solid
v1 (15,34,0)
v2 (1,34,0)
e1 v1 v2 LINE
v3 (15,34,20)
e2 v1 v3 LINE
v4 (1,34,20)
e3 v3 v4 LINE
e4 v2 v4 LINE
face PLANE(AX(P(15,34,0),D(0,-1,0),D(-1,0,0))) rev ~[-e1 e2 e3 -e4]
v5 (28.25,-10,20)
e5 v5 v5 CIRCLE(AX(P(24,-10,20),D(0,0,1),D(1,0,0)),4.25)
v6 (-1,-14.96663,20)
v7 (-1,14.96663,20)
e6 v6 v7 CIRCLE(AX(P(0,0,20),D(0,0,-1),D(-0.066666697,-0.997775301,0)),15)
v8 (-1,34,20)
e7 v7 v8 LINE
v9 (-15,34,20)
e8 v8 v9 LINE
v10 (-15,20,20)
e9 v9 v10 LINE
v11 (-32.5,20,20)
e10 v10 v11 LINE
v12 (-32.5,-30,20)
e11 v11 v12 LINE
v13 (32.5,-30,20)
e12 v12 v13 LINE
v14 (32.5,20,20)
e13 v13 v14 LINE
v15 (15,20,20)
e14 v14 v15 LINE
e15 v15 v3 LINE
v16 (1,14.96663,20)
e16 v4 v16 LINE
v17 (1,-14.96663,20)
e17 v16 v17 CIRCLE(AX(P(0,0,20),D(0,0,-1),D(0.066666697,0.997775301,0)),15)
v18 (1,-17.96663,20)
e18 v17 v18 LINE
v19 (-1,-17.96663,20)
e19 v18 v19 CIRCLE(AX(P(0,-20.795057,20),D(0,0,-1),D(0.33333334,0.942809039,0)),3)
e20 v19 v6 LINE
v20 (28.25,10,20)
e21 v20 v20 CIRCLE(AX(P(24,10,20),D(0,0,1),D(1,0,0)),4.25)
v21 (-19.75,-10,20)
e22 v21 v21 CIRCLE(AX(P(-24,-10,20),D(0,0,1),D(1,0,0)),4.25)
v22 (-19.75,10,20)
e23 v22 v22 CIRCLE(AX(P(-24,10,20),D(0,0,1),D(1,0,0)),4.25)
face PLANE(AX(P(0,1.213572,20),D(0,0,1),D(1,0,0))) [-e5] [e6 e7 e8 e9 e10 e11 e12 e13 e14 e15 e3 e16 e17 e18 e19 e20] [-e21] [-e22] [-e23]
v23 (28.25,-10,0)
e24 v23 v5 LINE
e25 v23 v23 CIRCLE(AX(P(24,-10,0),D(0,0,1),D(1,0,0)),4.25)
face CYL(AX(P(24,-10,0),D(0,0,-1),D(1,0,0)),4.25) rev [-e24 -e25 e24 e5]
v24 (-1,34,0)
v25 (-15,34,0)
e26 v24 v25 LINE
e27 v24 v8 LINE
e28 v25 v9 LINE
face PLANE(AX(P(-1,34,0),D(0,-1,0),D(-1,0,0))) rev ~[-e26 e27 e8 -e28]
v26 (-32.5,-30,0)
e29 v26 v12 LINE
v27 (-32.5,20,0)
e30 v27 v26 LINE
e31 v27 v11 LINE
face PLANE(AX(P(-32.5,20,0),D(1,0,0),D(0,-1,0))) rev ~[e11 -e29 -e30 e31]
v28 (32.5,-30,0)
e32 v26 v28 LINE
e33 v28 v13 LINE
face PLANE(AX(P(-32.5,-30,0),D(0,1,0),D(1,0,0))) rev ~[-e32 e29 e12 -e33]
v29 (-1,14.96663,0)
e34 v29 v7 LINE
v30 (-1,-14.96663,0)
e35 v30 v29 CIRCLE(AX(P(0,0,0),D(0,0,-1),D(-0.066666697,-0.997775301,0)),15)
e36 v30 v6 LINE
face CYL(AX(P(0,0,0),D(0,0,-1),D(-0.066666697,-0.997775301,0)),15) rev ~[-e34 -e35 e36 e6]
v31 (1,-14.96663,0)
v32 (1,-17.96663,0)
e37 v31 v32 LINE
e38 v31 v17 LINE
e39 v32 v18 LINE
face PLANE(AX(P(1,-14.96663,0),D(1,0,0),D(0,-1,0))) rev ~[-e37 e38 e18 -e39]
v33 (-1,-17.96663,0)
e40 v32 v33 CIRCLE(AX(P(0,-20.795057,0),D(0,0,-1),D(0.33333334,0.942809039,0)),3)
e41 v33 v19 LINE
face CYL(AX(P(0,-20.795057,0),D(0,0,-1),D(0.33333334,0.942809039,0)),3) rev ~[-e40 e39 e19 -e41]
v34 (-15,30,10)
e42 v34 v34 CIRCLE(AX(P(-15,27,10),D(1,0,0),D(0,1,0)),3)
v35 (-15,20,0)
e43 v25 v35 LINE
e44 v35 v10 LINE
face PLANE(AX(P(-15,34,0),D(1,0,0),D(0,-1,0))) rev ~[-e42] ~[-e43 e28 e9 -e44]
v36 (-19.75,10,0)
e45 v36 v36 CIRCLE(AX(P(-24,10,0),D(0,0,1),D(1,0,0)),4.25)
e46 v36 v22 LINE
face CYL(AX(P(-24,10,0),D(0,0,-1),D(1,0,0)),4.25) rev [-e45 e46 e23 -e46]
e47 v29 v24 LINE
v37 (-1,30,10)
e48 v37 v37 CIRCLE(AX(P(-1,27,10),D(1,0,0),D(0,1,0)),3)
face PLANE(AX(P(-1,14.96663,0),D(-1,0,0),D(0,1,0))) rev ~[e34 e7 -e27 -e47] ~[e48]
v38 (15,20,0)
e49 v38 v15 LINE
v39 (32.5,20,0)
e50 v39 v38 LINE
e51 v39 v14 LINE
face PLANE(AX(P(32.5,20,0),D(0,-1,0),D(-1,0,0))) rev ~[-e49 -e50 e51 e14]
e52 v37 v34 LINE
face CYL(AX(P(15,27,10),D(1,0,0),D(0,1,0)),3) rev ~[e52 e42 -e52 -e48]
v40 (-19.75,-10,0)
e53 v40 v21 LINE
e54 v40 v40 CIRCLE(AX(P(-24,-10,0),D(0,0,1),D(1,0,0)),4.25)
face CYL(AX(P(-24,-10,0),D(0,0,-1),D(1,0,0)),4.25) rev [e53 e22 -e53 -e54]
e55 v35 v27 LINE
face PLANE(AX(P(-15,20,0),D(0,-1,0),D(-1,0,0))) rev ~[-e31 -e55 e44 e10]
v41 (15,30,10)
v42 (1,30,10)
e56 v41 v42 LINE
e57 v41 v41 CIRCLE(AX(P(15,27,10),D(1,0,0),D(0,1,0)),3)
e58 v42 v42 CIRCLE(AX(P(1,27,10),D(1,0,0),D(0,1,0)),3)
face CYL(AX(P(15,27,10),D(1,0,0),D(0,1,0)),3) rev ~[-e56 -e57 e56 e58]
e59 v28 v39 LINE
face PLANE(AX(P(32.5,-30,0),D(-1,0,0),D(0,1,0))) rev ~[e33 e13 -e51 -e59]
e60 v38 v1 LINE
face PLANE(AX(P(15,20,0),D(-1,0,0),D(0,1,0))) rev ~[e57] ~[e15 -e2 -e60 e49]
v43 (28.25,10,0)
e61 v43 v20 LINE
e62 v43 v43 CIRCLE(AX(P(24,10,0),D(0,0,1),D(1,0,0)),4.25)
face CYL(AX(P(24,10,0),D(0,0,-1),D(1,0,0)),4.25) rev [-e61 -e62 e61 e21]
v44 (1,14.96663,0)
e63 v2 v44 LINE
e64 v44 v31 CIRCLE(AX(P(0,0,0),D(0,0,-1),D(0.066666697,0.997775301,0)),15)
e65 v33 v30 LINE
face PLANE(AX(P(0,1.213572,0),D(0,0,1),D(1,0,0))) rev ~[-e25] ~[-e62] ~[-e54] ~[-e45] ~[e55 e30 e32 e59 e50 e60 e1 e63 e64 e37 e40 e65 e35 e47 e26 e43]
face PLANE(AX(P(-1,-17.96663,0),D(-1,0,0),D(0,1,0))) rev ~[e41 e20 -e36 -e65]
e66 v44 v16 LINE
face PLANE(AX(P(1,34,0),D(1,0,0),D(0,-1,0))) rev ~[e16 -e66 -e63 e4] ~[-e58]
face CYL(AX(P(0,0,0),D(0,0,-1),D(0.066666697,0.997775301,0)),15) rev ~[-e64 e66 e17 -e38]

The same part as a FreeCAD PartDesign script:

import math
import FreeCAD as App
import Part
import Sketcher

V = App.Vector

doc = App.newDocument("Part")
body = doc.addObject("PartDesign::Body", "Body")

# Sketch on XY plane
sketch1 = body.newObject("Sketcher::SketchObject", "Sketch")
sketch1.AttachmentSupport = (doc.getObject("XY_Plane"), [""])
sketch1.MapMode = "FlatFace"
sketch1.addGeometry([
    Part.LineSegment(V(-1, 34, 0), V(-15, 34, 0)),  # 0
    Part.LineSegment(V(-15, 34, 0), V(-15, 20, 0)),  # 1
    Part.LineSegment(V(-15, 20, 0), V(-32.5, 20, 0)),  # 2
    Part.LineSegment(V(-32.5, 20, 0), V(-32.5, -30, 0)),  # 3
    Part.LineSegment(V(-32.5, -30, 0), V(32.5, -30, 0)),  # 4
    Part.LineSegment(V(32.5, -30, 0), V(32.5, 20, 0)),  # 5
    Part.LineSegment(V(32.5, 20, 0), V(15, 20, 0)),  # 6
    Part.LineSegment(V(15, 20, 0), V(15, 34, 0)),  # 7
    Part.LineSegment(V(15, 34, 0), V(1, 34, 0)),  # 8
    Part.LineSegment(V(1, 34, 0), V(1, 14.96663, 0)),  # 9
    Part.ArcOfCircle(Part.Circle(V(0, 0, 0), V(0, 0, 1), 15), math.radians(-86.177445), math.radians(86.177445)),  # 10
    Part.LineSegment(V(1, -14.96663, 0), V(1, -17.96663, 0)),  # 11
    Part.ArcOfCircle(Part.Circle(V(0, -20.795057, 0), V(0, 0, 1), 3), math.radians(109.471221), math.radians(430.528779)),  # 12
    Part.LineSegment(V(-1, -17.96663, 0), V(-1, -14.96663, 0)),  # 13
    Part.ArcOfCircle(Part.Circle(V(0, 0, 0), V(0, 0, 1), 15), math.radians(93.822555), math.radians(266.177445)),  # 14
    Part.LineSegment(V(-1, 14.96663, 0), V(-1, 34, 0)),  # 15
    Part.Circle(V(-24, -10, 0), V(0, 0, 1), 4.25),  # 16
    Part.Circle(V(24, -10, 0), V(0, 0, 1), 4.25),  # 17
    Part.Circle(V(-24, 10, 0), V(0, 0, 1), 4.25),  # 18
    Part.Circle(V(24, 10, 0), V(0, 0, 1), 4.25),  # 19
], False)
sketch1.addConstraint([
    Sketcher.Constraint("Coincident", 0, 2, 1, 1),
    Sketcher.Constraint("Coincident", 1, 2, 2, 1),
    Sketcher.Constraint("Coincident", 2, 2, 3, 1),
    Sketcher.Constraint("Coincident", 3, 2, 4, 1),
    Sketcher.Constraint("Coincident", 4, 2, 5, 1),
    Sketcher.Constraint("Coincident", 5, 2, 6, 1),
    Sketcher.Constraint("Coincident", 6, 2, 7, 1),
    Sketcher.Constraint("Coincident", 7, 2, 8, 1),
    Sketcher.Constraint("Coincident", 8, 2, 9, 1),
    Sketcher.Constraint("Coincident", 9, 2, 10, 2),
    Sketcher.Constraint("Coincident", 10, 1, 11, 1),
    Sketcher.Constraint("Coincident", 11, 2, 12, 2),
    Sketcher.Constraint("Coincident", 12, 1, 13, 1),
    Sketcher.Constraint("Coincident", 13, 2, 14, 2),
    Sketcher.Constraint("Coincident", 14, 1, 15, 1),
    Sketcher.Constraint("Coincident", 15, 2, 0, 1),
    Sketcher.Constraint("Horizontal", 0),
    Sketcher.Constraint("Vertical", 1),
    Sketcher.Constraint("Horizontal", 2),
    Sketcher.Constraint("Vertical", 3),
    Sketcher.Constraint("Horizontal", 4),
    Sketcher.Constraint("Vertical", 5),
    Sketcher.Constraint("Horizontal", 6),
    Sketcher.Constraint("Vertical", 7),
    Sketcher.Constraint("Horizontal", 8),
    Sketcher.Constraint("Vertical", 9),
    Sketcher.Constraint("Vertical", 11),
    Sketcher.Constraint("Vertical", 13),
    Sketcher.Constraint("Vertical", 15),
    Sketcher.Constraint("Coincident", 10, 3, -1, 1),
    Sketcher.Constraint("Coincident", 14, 3, -1, 1),
    Sketcher.Constraint("Equal", 10, 14),
    Sketcher.Constraint("Equal", 16, 17),
    Sketcher.Constraint("Equal", 17, 18),
    Sketcher.Constraint("Equal", 18, 19),
    Sketcher.Constraint("Symmetric", 17, 3, 18, 3, -1, 1),
    Sketcher.Constraint("Symmetric", 16, 3, 19, 3, -1, 1),
    Sketcher.Constraint("Symmetric", 16, 3, 17, 3, -2),
    Sketcher.Constraint("Symmetric", 2, 2, 5, 2, -2),
    Sketcher.Constraint("Symmetric", 0, 2, 7, 2, -2),
    Sketcher.Constraint("Symmetric", 11, 2, 12, 1, -2),
    Sketcher.Constraint("Horizontal", 9, 2, 14, 1),
    Sketcher.Constraint("Vertical", 9, 2, 10, 1),
    Sketcher.Constraint("Equal", 8, 1),
    Sketcher.Constraint("Radius", 10, 15.0),
    Sketcher.Constraint("Radius", 12, 3.0),
    Sketcher.Constraint("Diameter", 16, 8.5),
    Sketcher.Constraint("DistanceX", 0, 2, 0, 1, 14.0),
    Sketcher.Constraint("DistanceX", 4, 1, 4, 2, 65.0),
    Sketcher.Constraint("DistanceY", 3, 2, 3, 1, 50.0),
    Sketcher.Constraint("DistanceY", 11, 2, 11, 1, 3.0),
    Sketcher.Constraint("DistanceX", 2, 2, 2, 1, 17.5),
    Sketcher.Constraint("DistanceX", 16, 3, -1, 1, 24.0),
    Sketcher.Constraint("DistanceY", 16, 3, -1, 1, 10.0),
    Sketcher.Constraint("DistanceY", -1, 1, 0, 2, 34.0),
])
pad1 = body.newObject("PartDesign::Pad", "Pad")
pad1.Profile = sketch1
pad1.Length = 20

# Sketch on YZ plane
sketch2 = body.newObject("Sketcher::SketchObject", "Sketch001")
sketch2.AttachmentSupport = (doc.getObject("YZ_Plane"), [""])
sketch2.MapMode = "FlatFace"
sketch2.AttachmentOffset = App.Placement(V(0, 0, 15), App.Rotation())
sketch2.addGeometry(Part.Circle(V(27, 10, 0), V(0, 0, 1), 3), False)
sketch2.addConstraint([
    Sketcher.Constraint("Diameter", 0, 6.0),
    Sketcher.Constraint("DistanceX", -1, 1, 0, 3, 27.0),
    Sketcher.Constraint("DistanceY", -1, 1, 0, 3, 10.0),
])
pocket1 = body.newObject("PartDesign::Pocket", "Pocket")
pocket1.Profile = sketch2
pocket1.Length = 30

doc.recompute()
